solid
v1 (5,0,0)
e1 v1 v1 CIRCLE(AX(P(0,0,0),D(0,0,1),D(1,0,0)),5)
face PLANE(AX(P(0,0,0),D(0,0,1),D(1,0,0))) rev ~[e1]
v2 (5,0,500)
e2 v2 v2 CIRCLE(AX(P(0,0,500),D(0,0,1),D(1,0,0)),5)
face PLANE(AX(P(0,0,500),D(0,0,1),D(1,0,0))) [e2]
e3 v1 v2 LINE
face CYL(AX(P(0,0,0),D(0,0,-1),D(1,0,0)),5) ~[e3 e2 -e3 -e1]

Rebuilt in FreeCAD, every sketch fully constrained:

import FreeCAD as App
import Part
import Sketcher
from FreeCAD import Vector
Q = App.Units.Quantity

doc = App.newDocument("Part")
body = doc.addObject("PartDesign::Body", "Body")

# Sketch on XY plane
sketch1 = body.newObject("Sketcher::SketchObject", "Sketch")
sketch1.AttachmentSupport = (doc.getObject("XY_Plane"), [""])
sketch1.MapMode = "FlatFace"
sketch1.addGeometry(Part.Circle(Vector(0, 0, 0), Vector(0, 0, 1), 5), False)
sketch1.addConstraint(Sketcher.Constraint("Coincident", 0, 3, -1, 1))
sketch1.addConstraint(Sketcher.Constraint("Diameter", 0, Q("10 mm")))
pad1 = body.newObject("PartDesign::Pad", "Pad")
pad1.Profile = sketch1
pad1.Length = 500

doc.recompute()
